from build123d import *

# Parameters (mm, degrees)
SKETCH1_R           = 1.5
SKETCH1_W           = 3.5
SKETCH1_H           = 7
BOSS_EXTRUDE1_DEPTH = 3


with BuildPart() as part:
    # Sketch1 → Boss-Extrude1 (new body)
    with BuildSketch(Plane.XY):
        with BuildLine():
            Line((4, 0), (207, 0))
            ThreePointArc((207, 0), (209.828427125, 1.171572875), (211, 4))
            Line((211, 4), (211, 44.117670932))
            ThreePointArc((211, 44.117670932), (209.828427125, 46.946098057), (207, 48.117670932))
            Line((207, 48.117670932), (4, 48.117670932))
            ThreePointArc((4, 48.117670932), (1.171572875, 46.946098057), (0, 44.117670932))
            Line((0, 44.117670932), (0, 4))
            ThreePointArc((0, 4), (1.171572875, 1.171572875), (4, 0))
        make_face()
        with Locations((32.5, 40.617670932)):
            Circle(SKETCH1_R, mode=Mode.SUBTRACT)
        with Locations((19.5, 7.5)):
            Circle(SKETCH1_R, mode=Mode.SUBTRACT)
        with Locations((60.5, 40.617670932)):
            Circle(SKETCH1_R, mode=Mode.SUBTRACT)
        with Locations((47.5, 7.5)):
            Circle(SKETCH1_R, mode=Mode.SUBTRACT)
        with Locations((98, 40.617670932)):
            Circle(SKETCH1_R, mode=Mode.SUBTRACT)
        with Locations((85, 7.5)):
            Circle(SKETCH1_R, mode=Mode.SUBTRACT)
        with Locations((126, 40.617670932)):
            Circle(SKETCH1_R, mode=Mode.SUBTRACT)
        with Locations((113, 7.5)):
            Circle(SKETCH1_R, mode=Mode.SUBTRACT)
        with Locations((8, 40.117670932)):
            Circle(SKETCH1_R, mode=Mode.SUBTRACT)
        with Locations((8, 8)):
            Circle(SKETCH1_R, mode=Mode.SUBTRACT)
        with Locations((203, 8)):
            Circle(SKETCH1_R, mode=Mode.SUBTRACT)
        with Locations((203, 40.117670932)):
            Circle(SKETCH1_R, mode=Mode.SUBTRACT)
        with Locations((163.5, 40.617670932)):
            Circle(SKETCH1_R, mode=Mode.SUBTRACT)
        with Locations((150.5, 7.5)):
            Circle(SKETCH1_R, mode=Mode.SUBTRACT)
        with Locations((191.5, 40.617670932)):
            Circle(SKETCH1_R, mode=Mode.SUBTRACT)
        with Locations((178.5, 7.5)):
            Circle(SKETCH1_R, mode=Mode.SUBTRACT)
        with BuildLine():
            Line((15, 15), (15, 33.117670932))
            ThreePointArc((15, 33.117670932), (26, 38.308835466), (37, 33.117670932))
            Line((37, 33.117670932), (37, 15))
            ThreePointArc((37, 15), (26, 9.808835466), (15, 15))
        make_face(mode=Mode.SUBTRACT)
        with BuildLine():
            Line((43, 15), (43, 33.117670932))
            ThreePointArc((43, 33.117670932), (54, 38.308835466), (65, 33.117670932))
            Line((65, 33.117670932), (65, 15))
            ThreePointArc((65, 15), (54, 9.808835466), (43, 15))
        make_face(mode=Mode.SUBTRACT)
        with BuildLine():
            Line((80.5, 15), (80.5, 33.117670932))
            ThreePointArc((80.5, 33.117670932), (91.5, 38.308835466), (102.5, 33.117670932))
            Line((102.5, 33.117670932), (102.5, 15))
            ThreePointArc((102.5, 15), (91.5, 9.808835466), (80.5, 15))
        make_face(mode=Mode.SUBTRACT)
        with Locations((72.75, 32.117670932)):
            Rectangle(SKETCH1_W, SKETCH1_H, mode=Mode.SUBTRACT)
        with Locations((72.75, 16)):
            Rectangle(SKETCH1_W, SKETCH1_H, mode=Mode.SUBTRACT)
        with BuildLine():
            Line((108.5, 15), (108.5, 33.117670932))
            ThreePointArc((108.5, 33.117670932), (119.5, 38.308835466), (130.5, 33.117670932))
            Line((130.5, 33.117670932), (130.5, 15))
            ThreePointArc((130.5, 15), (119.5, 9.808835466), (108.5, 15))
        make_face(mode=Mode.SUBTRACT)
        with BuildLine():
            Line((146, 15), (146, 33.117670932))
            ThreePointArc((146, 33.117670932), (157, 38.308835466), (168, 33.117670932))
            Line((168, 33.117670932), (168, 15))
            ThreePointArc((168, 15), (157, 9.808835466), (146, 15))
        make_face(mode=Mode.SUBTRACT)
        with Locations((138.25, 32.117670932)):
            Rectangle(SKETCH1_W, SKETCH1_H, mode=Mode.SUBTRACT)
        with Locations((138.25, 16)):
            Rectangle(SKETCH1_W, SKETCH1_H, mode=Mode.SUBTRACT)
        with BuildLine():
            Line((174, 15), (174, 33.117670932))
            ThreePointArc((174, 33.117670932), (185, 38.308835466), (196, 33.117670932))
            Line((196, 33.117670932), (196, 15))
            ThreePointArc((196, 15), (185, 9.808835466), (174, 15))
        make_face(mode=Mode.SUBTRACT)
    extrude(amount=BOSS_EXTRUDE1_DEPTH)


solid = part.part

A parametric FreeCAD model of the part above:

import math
import FreeCAD as App
import Part
import Sketcher


def add_polygon(sketch, points):
    """Adds a closed chain of lines whose ends are joined by coincident constraints."""
    first, n = sketch.GeometryCount, len(points)
    for a, b in zip(points, points[1:] + points[:1]):
        sketch.addGeometry(Part.LineSegment(App.Vector(*a, 0), App.Vector(*b, 0)), False)
    for i in range(n):
        sketch.addConstraint(Sketcher.Constraint("Coincident", first + i, 2, first + (i + 1) % n, 1))

doc = App.newDocument("Part")
body = doc.addObject("PartDesign::Body", "Body")

# Sketch on XY plane
sketch1 = body.newObject("Sketcher::SketchObject", "Sketch")
sketch1.AttachmentSupport = (doc.getObject("XY_Plane"), [""])
sketch1.MapMode = "FlatFace"
sketch1.addGeometry(Part.LineSegment(App.Vector(4, 0, 0), App.Vector(207, 0, 0)), False)  # 0
sketch1.addGeometry(Part.ArcOfCircle(Part.Circle(App.Vector(207, 4, 0), App.Vector(0, 0, 1), 4), math.radians(-90), math.radians(0)), False)  # 1
sketch1.addGeometry(Part.LineSegment(App.Vector(211, 4, 0), App.Vector(211, 44.117671, 0)), False)  # 2
sketch1.addGeometry(Part.ArcOfCircle(Part.Circle(App.Vector(207, 44.117671, 0), App.Vector(0, 0, 1), 4), math.radians(0), math.radians(90)), False)  # 3
sketch1.addGeometry(Part.LineSegment(App.Vector(207, 48.117671, 0), App.Vector(4, 48.117671, 0)), False)  # 4
sketch1.addGeometry(Part.ArcOfCircle(Part.Circle(App.Vector(4, 44.117671, 0), App.Vector(0, 0, 1), 4), math.radians(90), math.radians(180)), False)  # 5
sketch1.addGeometry(Part.LineSegment(App.Vector(0, 44.117671, 0), App.Vector(0, 4, 0)), False)  # 6
sketch1.addGeometry(Part.ArcOfCircle(Part.Circle(App.Vector(4, 4, 0), App.Vector(0, 0, 1), 4), math.radians(180), math.radians(270)), False)  # 7
sketch1.addGeometry(Part.Circle(App.Vector(8, 8, 0), App.Vector(0, 0, 1), 1.5), False)  # 8
sketch1.addGeometry(Part.Circle(App.Vector(19.5, 7.5, 0), App.Vector(0, 0, 1), 1.5), False)  # 9
sketch1.addGeometry(Part.Circle(App.Vector(47.5, 7.5, 0), App.Vector(0, 0, 1), 1.5), False)  # 10
sketch1.addGeometry(Part.Circle(App.Vector(85, 7.5, 0), App.Vector(0, 0, 1), 1.5), False)  # 11
sketch1.addGeometry(Part.ArcOfCircle(Part.Circle(App.Vector(26, 24.058835, 0), App.Vector(0, 0, 1), 14.25), math.radians(-140.527503), math.radians(-39.472497)), False)  # 12
sketch1.addGeometry(Part.LineSegment(App.Vector(15, 15, 0), App.Vector(15, 33.117671, 0)), False)  # 13
sketch1.addGeometry(Part.ArcOfCircle(Part.Circle(App.Vector(26, 24.058835, 0), App.Vector(0, 0, 1), 14.25), math.radians(39.472497), math.radians(140.527503)), False)  # 14
sketch1.addGeometry(Part.LineSegment(App.Vector(37, 33.117671, 0), App.Vector(37, 15, 0)), False)  # 15
sketch1.addGeometry(Part.ArcOfCircle(Part.Circle(App.Vector(54, 24.058835, 0), App.Vector(0, 0, 1), 14.25), math.radians(-140.527503), math.radians(-39.472497)), False)  # 16
sketch1.addGeometry(Part.LineSegment(App.Vector(43, 15, 0), App.Vector(43, 33.117671, 0)), False)  # 17
sketch1.addGeometry(Part.ArcOfCircle(Part.Circle(App.Vector(54, 24.058835, 0), App.Vector(0, 0, 1), 14.25), math.radians(39.472497), math.radians(140.527503)), False)  # 18
sketch1.addGeometry(Part.LineSegment(App.Vector(65, 33.117671, 0), App.Vector(65, 15, 0)), False)  # 19
add_polygon(sketch1, [(74.5, 12.5), (71, 12.5), (71, 19.5), (74.5, 19.5)])  # lines 20-23
sketch1.addGeometry(Part.ArcOfCircle(Part.Circle(App.Vector(91.5, 24.058835, 0), App.Vector(0, 0, 1), 14.25), math.radians(-140.527503), math.radians(-39.472497)), False)  # 24
sketch1.addGeometry(Part.LineSegment(App.Vector(80.5, 15, 0), App.Vector(80.5, 33.117671, 0)), False)  # 25
sketch1.addGeometry(Part.ArcOfCircle(Part.Circle(App.Vector(91.5, 24.058835, 0), App.Vector(0, 0, 1), 14.25), math.radians(39.472497), math.radians(140.527503)), False)  # 26
sketch1.addGeometry(Part.LineSegment(App.Vector(102.5, 33.117671, 0), App.Vector(102.5, 15, 0)), False)  # 27
sketch1.addGeometry(Part.Circle(App.Vector(113, 7.5, 0), App.Vector(0, 0, 1), 1.5), False)  # 28
sketch1.addGeometry(Part.Circle(App.Vector(150.5, 7.5, 0), App.Vector(0, 0, 1), 1.5), False)  # 29
sketch1.addGeometry(Part.Circle(App.Vector(178.5, 7.5, 0), App.Vector(0, 0, 1), 1.5), False)  # 30
sketch1.addGeometry(Part.Circle(App.Vector(203, 8, 0), App.Vector(0, 0, 1), 1.5), False)  # 31
add_polygon(sketch1, [(140, 12.5), (136.5, 12.5), (136.5, 19.5), (140, 19.5)])  # lines 32-35
sketch1.addGeometry(Part.ArcOfCircle(Part.Circle(App.Vector(119.5, 24.058835, 0), App.Vector(0, 0, 1), 14.25), math.radians(-140.527503), math.radians(-39.472497)), False)  # 36
sketch1.addGeometry(Part.LineSegment(App.Vector(108.5, 15, 0), App.Vector(108.5, 33.117671, 0)), False)  # 37
sketch1.addGeometry(Part.ArcOfCircle(Part.Circle(App.Vector(119.5, 24.058835, 0), App.Vector(0, 0, 1), 14.25), math.radians(39.472497), math.radians(140.527503)), False)  # 38
sketch1.addGeometry(Part.LineSegment(App.Vector(130.5, 33.117671, 0), App.Vector(130.5, 15, 0)), False)  # 39
sketch1.addGeometry(Part.ArcOfCircle(Part.Circle(App.Vector(157, 24.058835, 0), App.Vector(0, 0, 1), 14.25), math.radians(-140.527503), math.radians(-39.472497)), False)  # 40
sketch1.addGeometry(Part.LineSegment(App.Vector(146, 15, 0), App.Vector(146, 33.117671, 0)), False)  # 41
sketch1.addGeometry(Part.ArcOfCircle(Part.Circle(App.Vector(157, 24.058835, 0), App.Vector(0, 0, 1), 14.25), math.radians(39.472497), math.radians(140.527503)), False)  # 42
sketch1.addGeometry(Part.LineSegment(App.Vector(168, 33.117671, 0), App.Vector(168, 15, 0)), False)  # 43
sketch1.addGeometry(Part.ArcOfCircle(Part.Circle(App.Vector(185, 24.058835, 0), App.Vector(0, 0, 1), 14.25), math.radians(-140.527503), math.radians(-39.472497)), False)  # 44
sketch1.addGeometry(Part.LineSegment(App.Vector(174, 15, 0), App.Vector(174, 33.117671, 0)), False)  # 45
sketch1.addGeometry(Part.ArcOfCircle(Part.Circle(App.Vector(185, 24.058835, 0), App.Vector(0, 0, 1), 14.25), math.radians(39.472497), math.radians(140.527503)), False)  # 46
sketch1.addGeometry(Part.LineSegment(App.Vector(196, 33.117671, 0), App.Vector(196, 15, 0)), False)  # 47
add_polygon(sketch1, [(74.5, 28.617671), (71, 28.617671), (71, 35.617671), (74.5, 35.617671)])  # lines 48-51
sketch1.addGeometry(Part.Circle(App.Vector(8, 40.117671, 0), App.Vector(0, 0, 1), 1.5), False)  # 52
sketch1.addGeometry(Part.Circle(App.Vector(32.5, 40.617671, 0), App.Vector(0, 0, 1), 1.5), False)  # 53
sketch1.addGeometry(Part.Circle(App.Vector(60.5, 40.617671, 0), App.Vector(0, 0, 1), 1.5), False)  # 54
sketch1.addGeometry(Part.Circle(App.Vector(98, 40.617671, 0), App.Vector(0, 0, 1), 1.5), False)  # 55
add_polygon(sketch1, [(140, 28.617671), (136.5, 28.617671), (136.5, 35.617671), (140, 35.617671)])  # lines 56-59
sketch1.addGeometry(Part.Circle(App.Vector(126, 40.617671, 0), App.Vector(0, 0, 1), 1.5), False)  # 60
sketch1.addGeometry(Part.Circle(App.Vector(163.5, 40.617671, 0), App.Vector(0, 0, 1), 1.5), False)  # 61
sketch1.addGeometry(Part.Circle(App.Vector(191.5, 40.617671, 0), App.Vector(0, 0, 1), 1.5), False)  # 62
sketch1.addGeometry(Part.Circle(App.Vector(203, 40.117671, 0), App.Vector(0, 0, 1), 1.5), False)  # 63
sketch1.addConstraint(Sketcher.Constraint("Tangent", 0, 2, 1, 1))
sketch1.addConstraint(Sketcher.Constraint("Tangent", 1, 2, 2, 1))
sketch1.addConstraint(Sketcher.Constraint("Tangent", 2, 2, 3, 1))
sketch1.addConstraint(Sketcher.Constraint("Tangent", 3, 2, 4, 1))
sketch1.addConstraint(Sketcher.Constraint("Tangent", 4, 2, 5, 1))
sketch1.addConstraint(Sketcher.Constraint("Tangent", 5, 2, 6, 1))
sketch1.addConstraint(Sketcher.Constraint("Tangent", 6, 2, 7, 1))
sketch1.addConstraint(Sketcher.Constraint("Tangent", 7, 2, 0, 1))
sketch1.addConstraint(Sketcher.Constraint("Coincident", 12, 1, 13, 1))
sketch1.addConstraint(Sketcher.Constraint("Coincident", 13, 2, 14, 2))
sketch1.addConstraint(Sketcher.Constraint("Coincident", 14, 1, 15, 1))
sketch1.addConstraint(Sketcher.Constraint("Coincident", 15, 2, 12, 2))
sketch1.addConstraint(Sketcher.Constraint("Coincident", 16, 1, 17, 1))
sketch1.addConstraint(Sketcher.Constraint("Coincident", 17, 2, 18, 2))
sketch1.addConstraint(Sketcher.Constraint("Coincident", 18, 1, 19, 1))
sketch1.addConstraint(Sketcher.Constraint("Coincident", 19, 2, 16, 2))
sketch1.addConstraint(Sketcher.Constraint("Coincident", 24, 1, 25, 1))
sketch1.addConstraint(Sketcher.Constraint("Coincident", 25, 2, 26, 2))
sketch1.addConstraint(Sketcher.Constraint("Coincident", 26, 1, 27, 1))
sketch1.addConstraint(Sketcher.Constraint("Coincident", 27, 2, 24, 2))
sketch1.addConstraint(Sketcher.Constraint("Coincident", 36, 1, 37, 1))
sketch1.addConstraint(Sketcher.Constraint("Coincident", 37, 2, 38, 2))
sketch1.addConstraint(Sketcher.Constraint("Coincident", 38, 1, 39, 1))
sketch1.addConstraint(Sketcher.Constraint("Coincident", 39, 2, 36, 2))
sketch1.addConstraint(Sketcher.Constraint("Coincident", 40, 1, 41, 1))
sketch1.addConstraint(Sketcher.Constraint("Coincident", 41, 2, 42, 2))
sketch1.addConstraint(Sketcher.Constraint("Coincident", 42, 1, 43, 1))
sketch1.addConstraint(Sketcher.Constraint("Coincident", 43, 2, 40, 2))
sketch1.addConstraint(Sketcher.Constraint("Coincident", 44, 1, 45, 1))
sketch1.addConstraint(Sketcher.Constraint("Coincident", 45, 2, 46, 2))
sketch1.addConstraint(Sketcher.Constraint("Coincident", 46, 1, 47, 1))
sketch1.addConstraint(Sketcher.Constraint("Coincident", 47, 2, 44, 2))
sketch1.addConstraint(Sketcher.Constraint("Horizontal", 0))
sketch1.addConstraint(Sketcher.Constraint("Vertical", 2))
sketch1.addConstraint(Sketcher.Constraint("Horizontal", 4))
sketch1.addConstraint(Sketcher.Constraint("Vertical", 6))
sketch1.addConstraint(Sketcher.Constraint("Vertical", 13))
sketch1.addConstraint(Sketcher.Constraint("Vertical", 15))
sketch1.addConstraint(Sketcher.Constraint("Vertical", 17))
sketch1.addConstraint(Sketcher.Constraint("Vertical", 19))
sketch1.addConstraint(Sketcher.Constraint("Horizontal", 20))
sketch1.addConstraint(Sketcher.Constraint("Vertical", 21))
sketch1.addConstraint(Sketcher.Constraint("Horizontal", 22))
sketch1.addConstraint(Sketcher.Constraint("Vertical", 23))
sketch1.addConstraint(Sketcher.Constraint("Vertical", 25))
sketch1.addConstraint(Sketcher.Constraint("Vertical", 27))
sketch1.addConstraint(Sketcher.Constraint("Horizontal", 32))
sketch1.addConstraint(Sketcher.Constraint("Vertical", 33))
sketch1.addConstraint(Sketcher.Constraint("Horizontal", 34))
sketch1.addConstraint(Sketcher.Constraint("Vertical", 35))
sketch1.addConstraint(Sketcher.Constraint("Vertical", 37))
sketch1.addConstraint(Sketcher.Constraint("Vertical", 39))
sketch1.addConstraint(Sketcher.Constraint("Vertical", 41))
sketch1.addConstraint(Sketcher.Constraint("Vertical", 43))
sketch1.addConstraint(Sketcher.Constraint("Vertical", 45))
sketch1.addConstraint(Sketcher.Constraint("Vertical", 47))
sketch1.addConstraint(Sketcher.Constraint("Horizontal", 48))
sketch1.addConstraint(Sketcher.Constraint("Vertical", 49))
sketch1.addConstraint(Sketcher.Constraint("Horizontal", 50))
sketch1.addConstraint(Sketcher.Constraint("Vertical", 51))
sketch1.addConstraint(Sketcher.Constraint("Horizontal", 56))
sketch1.addConstraint(Sketcher.Constraint("Vertical", 57))
sketch1.addConstraint(Sketcher.Constraint("Horizontal", 58))
sketch1.addConstraint(Sketcher.Constraint("Vertical", 59))
sketch1.addConstraint(Sketcher.Constraint("Coincident", 14, 3, 12, 3))
sketch1.addConstraint(Sketcher.Constraint("Coincident", 18, 3, 16, 3))
sketch1.addConstraint(Sketcher.Constraint("Coincident", 26, 3, 24, 3))
sketch1.addConstraint(Sketcher.Constraint("Coincident", 38, 3, 36, 3))
sketch1.addConstraint(Sketcher.Constraint("Coincident", 42, 3, 40, 3))
sketch1.addConstraint(Sketcher.Constraint("Coincident", 46, 3, 44, 3))
sketch1.addConstraint(Sketcher.Constraint("Equal", 1, 3))
sketch1.addConstraint(Sketcher.Constraint("Equal", 3, 5))
sketch1.addConstraint(Sketcher.Constraint("Equal", 5, 7))
sketch1.addConstraint(Sketcher.Constraint("Equal", 8, 9))
sketch1.addConstraint(Sketcher.Constraint("Equal", 9, 10))
sketch1.addConstraint(Sketcher.Constraint("Equal", 10, 11))
sketch1.addConstraint(Sketcher.Constraint("Equal", 12, 14))
sketch1.addConstraint(Sketcher.Constraint("Equal", 14, 16))
sketch1.addConstraint(Sketcher.Constraint("Equal", 16, 18))
sketch1.addConstraint(Sketcher.Constraint("Equal", 18, 24))
sketch1.addConstraint(Sketcher.Constraint("Equal", 24, 26))
sketch1.addConstraint(Sketcher.Constraint("Equal", 11, 28))
sketch1.addConstraint(Sketcher.Constraint("Equal", 28, 29))
sketch1.addConstraint(Sketcher.Constraint("Equal", 29, 30))
sketch1.addConstraint(Sketcher.Constraint("Equal", 30, 31))
sketch1.addConstraint(Sketcher.Constraint("Equal", 26, 36))
sketch1.addConstraint(Sketcher.Constraint("Equal", 36, 38))
sketch1.addConstraint(Sketcher.Constraint("Equal", 38, 40))
sketch1.addConstraint(Sketcher.Constraint("Equal", 40, 42))
sketch1.addConstraint(Sketcher.Constraint("Equal", 42, 44))
sketch1.addConstraint(Sketcher.Constraint("Equal", 44, 46))
sketch1.addConstraint(Sketcher.Constraint("Equal", 31, 52))
sketch1.addConstraint(Sketcher.Constraint("Equal", 52, 53))
sketch1.addConstraint(Sketcher.Constraint("Equal", 53, 54))
sketch1.addConstraint(Sketcher.Constraint("Equal", 54, 55))
sketch1.addConstraint(Sketcher.Constraint("Equal", 55, 60))
sketch1.addConstraint(Sketcher.Constraint("Equal", 60, 61))
sketch1.addConstraint(Sketcher.Constraint("Equal", 61, 62))
sketch1.addConstraint(Sketcher.Constraint("Equal", 62, 63))
sketch1.addConstraint(Sketcher.Constraint("PointOnObject", 0, 2, -1))
sketch1.addConstraint(Sketcher.Constraint("PointOnObject", 5, 2, -2))
sketch1.addConstraint(Sketcher.Constraint("Horizontal", 9, 3, 10, 3))
sketch1.addConstraint(Sketcher.Constraint("Horizontal", 10, 3, 11, 3))
sketch1.addConstraint(Sketcher.Constraint("Horizontal", 14, 3, 16, 3))
sketch1.addConstraint(Sketcher.Constraint("Horizontal", 18, 3, 24, 3))
sketch1.addConstraint(Sketcher.Constraint("Horizontal", 11, 3, 28, 3))
sketch1.addConstraint(Sketcher.Constraint("Horizontal", 28, 3, 29, 3))
sketch1.addConstraint(Sketcher.Constraint("Horizontal", 29, 3, 30, 3))
sketch1.addConstraint(Sketcher.Constraint("Horizontal", 8, 3, 31, 3))
sketch1.addConstraint(Sketcher.Constraint("Horizontal", 26, 3, 36, 3))
sketch1.addConstraint(Sketcher.Constraint("Horizontal", 38, 3, 40, 3))
sketch1.addConstraint(Sketcher.Constraint("Horizontal", 42, 3, 44, 3))
sketch1.addConstraint(Sketcher.Constraint("Horizontal", 53, 3, 54, 3))
sketch1.addConstraint(Sketcher.Constraint("Horizontal", 54, 3, 55, 3))
sketch1.addConstraint(Sketcher.Constraint("Horizontal", 55, 3, 60, 3))
sketch1.addConstraint(Sketcher.Constraint("Horizontal", 60, 3, 61, 3))
sketch1.addConstraint(Sketcher.Constraint("Horizontal", 61, 3, 62, 3))
sketch1.addConstraint(Sketcher.Constraint("Horizontal", 52, 3, 63, 3))
sketch1.addConstraint(Sketcher.Constraint("Horizontal", 13, 2, 14, 1))
sketch1.addConstraint(Sketcher.Constraint("Horizontal", 15, 2, 16, 1))
sketch1.addConstraint(Sketcher.Constraint("Horizontal", 17, 2, 18, 1))
sketch1.addConstraint(Sketcher.Constraint("Horizontal", 19, 2, 24, 1))
sketch1.addConstraint(Sketcher.Constraint("Horizontal", 25, 2, 26, 1))
sketch1.addConstraint(Sketcher.Constraint("Horizontal", 23, 2, 32, 2))
sketch1.addConstraint(Sketcher.Constraint("Horizontal", 22, 2, 33, 2))
sketch1.addConstraint(Sketcher.Constraint("Horizontal", 27, 2, 36, 1))
sketch1.addConstraint(Sketcher.Constraint("Horizontal", 37, 2, 38, 1))
sketch1.addConstraint(Sketcher.Constraint("Horizontal", 39, 2, 40, 1))
sketch1.addConstraint(Sketcher.Constraint("Horizontal", 41, 2, 42, 1))
sketch1.addConstraint(Sketcher.Constraint("Horizontal", 43, 2, 44, 1))
sketch1.addConstraint(Sketcher.Constraint("Horizontal", 45, 2, 46, 1))
sketch1.addConstraint(Sketcher.Constraint("Horizontal", 51, 2, 56, 2))
sketch1.addConstraint(Sketcher.Constraint("Horizontal", 50, 2, 57, 2))
sketch1.addConstraint(Sketcher.Constraint("Vertical", 8, 3, 52, 3))
sketch1.addConstraint(Sketcher.Constraint("Vertical", 31, 3, 63, 3))
sketch1.addConstraint(Sketcher.Constraint("Vertical", 21, 2, 48, 2))
sketch1.addConstraint(Sketcher.Constraint("Vertical", 23, 2, 50, 2))
sketch1.addConstraint(Sketcher.Constraint("Vertical", 33, 2, 56, 2))
sketch1.addConstraint(Sketcher.Constraint("Vertical", 35, 2, 58, 2))
sketch1.addConstraint(Sketcher.Constraint("Equal", 22, 32))
sketch1.addConstraint(Sketcher.Constraint("Equal", 35, 49))
sketch1.addConstraint(Sketcher.Constraint("Diameter", 8, 3.0))
sketch1.addConstraint(Sketcher.Constraint("Radius", 1, 4.0))
sketch1.addConstraint(Sketcher.Constraint("DistanceX", 0, 1, 0, 2, 203.0))
sketch1.addConstraint(Sketcher.Constraint("DistanceY", 21, 1, 21, 2, 7.0))
sketch1.addConstraint(Sketcher.Constraint("Radius", 12, 14.25))
sketch1.addConstraint(Sketcher.Constraint("DistanceX", 20, 2, 20, 1, 3.5))
sketch1.addConstraint(Sketcher.Constraint("DistanceX", -1, 1, 8, 3, 8.0))
sketch1.addConstraint(Sketcher.Constraint("DistanceY", -1, 1, 8, 3, 8.0))
sketch1.addConstraint(Sketcher.Constraint("DistanceX", -1, 1, 11, 3, 85.0))
sketch1.addConstraint(Sketcher.Constraint("DistanceX", -1, 1, 12, 3, 26.0))
sketch1.addConstraint(Sketcher.Constraint("DistanceX", -1, 1, 16, 3, 54.0))
sketch1.addConstraint(Sketcher.Constraint("DistanceX", -1, 1, 28, 3, 113.0))
sketch1.addConstraint(Sketcher.Constraint("DistanceX", -1, 1, 31, 3, 203.0))
sketch1.addConstraint(Sketcher.Constraint("DistanceX", -1, 1, 40, 3, 157.0))
sketch1.addConstraint(Sketcher.Constraint("DistanceX", -1, 1, 44, 3, 185.0))
sketch1.addConstraint(Sketcher.Constraint("DistanceX", -1, 1, 55, 3, 98.0))
sketch1.addConstraint(Sketcher.Constraint("DistanceX", -1, 1, 60, 3, 126.0))
sketch1.addConstraint(Sketcher.Constraint("DistanceX", -1, 1, 12, 1, 15.0))
sketch1.addConstraint(Sketcher.Constraint("DistanceY", -1, 1, 12, 1, 15.0))
sketch1.addConstraint(Sketcher.Constraint("DistanceX", -1, 1, 20, 2, 71.0))
sketch1.addConstraint(Sketcher.Constraint("DistanceX", -1, 1, 34, 2, 140.0))
sketch1.addConstraint(Sketcher.Constraint("DistanceX", -1, 1, 9, 3, 19.5))
sketch1.addConstraint(Sketcher.Constraint("DistanceY", -1, 1, 9, 3, 7.5))
sketch1.addConstraint(Sketcher.Constraint("DistanceX", -1, 1, 10, 3, 47.5))
sketch1.addConstraint(Sketcher.Constraint("DistanceX", -1, 1, 24, 3, 91.5))
sketch1.addConstraint(Sketcher.Constraint("DistanceX", -1, 1, 29, 3, 150.5))
sketch1.addConstraint(Sketcher.Constraint("DistanceX", -1, 1, 30, 3, 178.5))
sketch1.addConstraint(Sketcher.Constraint("DistanceX", -1, 1, 36, 3, 119.5))
sketch1.addConstraint(Sketcher.Constraint("DistanceX", -1, 1, 53, 3, 32.5))
sketch1.addConstraint(Sketcher.Constraint("DistanceX", -1, 1, 54, 3, 60.5))
sketch1.addConstraint(Sketcher.Constraint("DistanceX", -1, 1, 61, 3, 163.5))
sketch1.addConstraint(Sketcher.Constraint("DistanceX", -1, 1, 62, 3, 191.5))
sketch1.addConstraint(Sketcher.Constraint("DistanceY", -1, 1, 20, 2, 12.5))
sketch1.addConstraint(Sketcher.Constraint("DistanceY", 2, 1, 2, 2, 40.117671))
sketch1.addConstraint(Sketcher.Constraint("DistanceY", -1, 1, 52, 3, 40.117671))
sketch1.addConstraint(Sketcher.Constraint("DistanceY", -1, 1, 53, 3, 40.617671))
sketch1.addConstraint(Sketcher.Constraint("DistanceY", -1, 1, 48, 2, 28.617671))
pad1 = body.newObject("PartDesign::Pad", "Pad")
pad1.Profile = sketch1
pad1.Length = 3

doc.recompute()
